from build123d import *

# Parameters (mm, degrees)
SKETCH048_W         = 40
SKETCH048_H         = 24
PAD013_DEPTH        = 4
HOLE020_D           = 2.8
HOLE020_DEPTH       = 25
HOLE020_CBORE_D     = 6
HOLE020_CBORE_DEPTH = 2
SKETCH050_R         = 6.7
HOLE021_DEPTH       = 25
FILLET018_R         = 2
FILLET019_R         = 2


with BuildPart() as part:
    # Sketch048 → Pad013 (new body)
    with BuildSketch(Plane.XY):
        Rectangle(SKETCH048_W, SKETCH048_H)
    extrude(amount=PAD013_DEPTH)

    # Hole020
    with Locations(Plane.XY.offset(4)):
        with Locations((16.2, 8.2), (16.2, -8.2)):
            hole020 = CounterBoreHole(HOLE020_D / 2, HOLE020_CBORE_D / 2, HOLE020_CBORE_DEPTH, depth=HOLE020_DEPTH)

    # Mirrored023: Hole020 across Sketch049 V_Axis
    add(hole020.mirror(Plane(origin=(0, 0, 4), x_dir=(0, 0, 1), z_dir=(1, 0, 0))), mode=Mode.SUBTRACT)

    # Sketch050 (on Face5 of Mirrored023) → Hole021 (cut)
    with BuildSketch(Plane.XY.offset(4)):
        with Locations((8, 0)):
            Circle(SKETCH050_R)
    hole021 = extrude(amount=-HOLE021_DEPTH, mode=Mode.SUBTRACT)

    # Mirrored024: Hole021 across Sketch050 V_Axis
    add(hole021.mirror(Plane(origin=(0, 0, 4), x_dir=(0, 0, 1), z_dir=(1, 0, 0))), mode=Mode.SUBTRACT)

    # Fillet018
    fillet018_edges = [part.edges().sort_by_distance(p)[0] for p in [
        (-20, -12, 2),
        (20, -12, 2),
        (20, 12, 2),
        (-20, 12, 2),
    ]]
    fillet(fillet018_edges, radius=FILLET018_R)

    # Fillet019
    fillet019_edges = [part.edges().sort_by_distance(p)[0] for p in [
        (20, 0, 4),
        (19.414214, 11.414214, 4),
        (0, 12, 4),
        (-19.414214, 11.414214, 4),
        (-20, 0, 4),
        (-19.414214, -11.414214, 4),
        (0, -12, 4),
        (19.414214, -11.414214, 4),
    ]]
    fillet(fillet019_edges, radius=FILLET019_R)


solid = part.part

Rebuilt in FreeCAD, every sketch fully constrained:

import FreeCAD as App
import Part
import Sketcher

V = App.Vector
Q = App.Units.Quantity


def edges_at(feature, points):
    """Names of the edges that pass closest to the given points."""
    edges = feature.Shape.Edges
    near = lambda p: min(range(len(edges)), key=lambda i: edges[i].distToShape(Part.Vertex(*p))[0])
    return sorted({f"Edge{near(p) + 1}" for p in points})

doc = App.newDocument("Part")
body = doc.addObject("PartDesign::Body", "Body")

sketch1 = doc.addObject("Sketcher::SketchObject", "Sketch")
body.addObject(sketch1)
sketch1.AttachmentSupport = (doc.XY_Plane, [""])
sketch1.MapMode = "FlatFace"
sketch1.addGeometry([
    Part.LineSegment(V(-20, 12, 0), V(-20, -12, 0)),
    Part.LineSegment(V(-20, -12, 0), V(20, -12, 0)),
    Part.LineSegment(V(20, -12, 0), V(20, 12, 0)),
    Part.LineSegment(V(20, 12, 0), V(-20, 12, 0)),
], False)
sketch1.addConstraint([
    Sketcher.Constraint("Coincident", 0, 2, 1, 1),
    Sketcher.Constraint("Coincident", 1, 2, 2, 1),
    Sketcher.Constraint("Coincident", 2, 2, 3, 1),
    Sketcher.Constraint("Coincident", 3, 2, 0, 1),
    Sketcher.Constraint("Vertical", 0),
    Sketcher.Constraint("Horizontal", 1),
    Sketcher.Constraint("Vertical", 2),
    Sketcher.Constraint("Horizontal", 3),
    Sketcher.Constraint("Symmetric", 0, 2, 2, 2, -1, 1),
    Sketcher.Constraint("DistanceX", 1, 1, 1, 2, Q("40 mm")),
    Sketcher.Constraint("DistanceY", 0, 2, 0, 1, Q("24 mm")),
])
pad1 = doc.addObject("PartDesign::Pad", "Pad")
body.addObject(pad1)
pad1.Profile = sketch1
pad1.Length = 4

sketch2 = doc.addObject("Sketcher::SketchObject", "Sketch001")
body.addObject(sketch2)
sketch2.AttachmentSupport = (doc.XY_Plane, [""])
sketch2.MapMode = "FlatFace"
sketch2.AttachmentOffset = App.Placement(V(0, 0, 4), App.Rotation())
sketch2.addGeometry([
    Part.Circle(V(16.2, 8.2, 0), V(0, 0, 1), 1.4),
    Part.Circle(V(16.2, -8.2, 0), V(0, 0, 1), 1.4),
], False)
sketch2.addConstraint([
    Sketcher.Constraint("Equal", 0, 1),
    Sketcher.Constraint("Symmetric", 0, 3, 1, 3, -1),
    Sketcher.Constraint("Diameter", 0, Q("2.8 mm")),
    Sketcher.Constraint("DistanceX", -1, 1, 0, 3, Q("16.2 mm")),
    Sketcher.Constraint("DistanceY", -1, 1, 0, 3, Q("8.2 mm")),
])
doc.recompute()
hole = doc.addObject("PartDesign::Hole", "Hole")
body.addObject(hole)
hole.Profile = sketch2
hole.ThreadType = "None"
hole.Diameter = 2.8
hole.DepthType = "Dimension"
hole.Depth = 25
hole.DrillPoint = "Flat"
hole.HoleCutType = "Counterbore"
hole.HoleCutDiameter = 6
hole.HoleCutDepth = 2
doc.recompute()

mirrored = doc.addObject("PartDesign::Mirrored", "Mirrored")
body.addObject(mirrored)
mirrored.Originals = [hole]
mirrored.MirrorPlane = (doc.YZ_Plane, [""])
body.Tip = mirrored

sketch3 = doc.addObject("Sketcher::SketchObject", "Sketch002")
body.addObject(sketch3)
sketch3.AttachmentSupport = (doc.XY_Plane, [""])
sketch3.MapMode = "FlatFace"
sketch3.AttachmentOffset = App.Placement(V(0, 0, 4), App.Rotation())
sketch3.addGeometry(Part.Circle(V(8, 0, 0), V(0, 0, 1), 6.7), False)
sketch3.addConstraint([
    Sketcher.Constraint("PointOnObject", 0, 3, -1),
    Sketcher.Constraint("Diameter", 0, Q("13.4 mm")),
    Sketcher.Constraint("DistanceX", -1, 1, 0, 3, Q("8 mm")),
])
pocket1 = doc.addObject("PartDesign::Pocket", "Pocket")
body.addObject(pocket1)
pocket1.Profile = sketch3
pocket1.Length = 25
doc.recompute()

mirrored2 = doc.addObject("PartDesign::Mirrored", "Mirrored001")
body.addObject(mirrored2)
mirrored2.Originals = [pocket1]
mirrored2.MirrorPlane = (doc.YZ_Plane, [""])
body.Tip = mirrored2
doc.recompute()

fillet = doc.addObject("PartDesign::Fillet", "Fillet")
body.addObject(fillet)
fillet.Base = (mirrored2, edges_at(mirrored2, [
    (-20, -12, 2),
    (20, -12, 2),
    (20, 12, 2),
    (-20, 12, 2),
]))
fillet.Radius = 2
doc.recompute()

fillet2 = doc.addObject("PartDesign::Fillet", "Fillet001")
body.addObject(fillet2)
fillet2.Base = (fillet, edges_at(fillet, [
    (20, 0, 4),
    (19.414, 11.414, 4),
    (0, 12, 4),
    (-19.414, 11.414, 4),
    (-20, 0, 4),
    (-19.414, -11.414, 4),
    (0, -12, 4),
    (19.414, -11.414, 4),
]))
fillet2.Radius = 2

doc.recompute()
